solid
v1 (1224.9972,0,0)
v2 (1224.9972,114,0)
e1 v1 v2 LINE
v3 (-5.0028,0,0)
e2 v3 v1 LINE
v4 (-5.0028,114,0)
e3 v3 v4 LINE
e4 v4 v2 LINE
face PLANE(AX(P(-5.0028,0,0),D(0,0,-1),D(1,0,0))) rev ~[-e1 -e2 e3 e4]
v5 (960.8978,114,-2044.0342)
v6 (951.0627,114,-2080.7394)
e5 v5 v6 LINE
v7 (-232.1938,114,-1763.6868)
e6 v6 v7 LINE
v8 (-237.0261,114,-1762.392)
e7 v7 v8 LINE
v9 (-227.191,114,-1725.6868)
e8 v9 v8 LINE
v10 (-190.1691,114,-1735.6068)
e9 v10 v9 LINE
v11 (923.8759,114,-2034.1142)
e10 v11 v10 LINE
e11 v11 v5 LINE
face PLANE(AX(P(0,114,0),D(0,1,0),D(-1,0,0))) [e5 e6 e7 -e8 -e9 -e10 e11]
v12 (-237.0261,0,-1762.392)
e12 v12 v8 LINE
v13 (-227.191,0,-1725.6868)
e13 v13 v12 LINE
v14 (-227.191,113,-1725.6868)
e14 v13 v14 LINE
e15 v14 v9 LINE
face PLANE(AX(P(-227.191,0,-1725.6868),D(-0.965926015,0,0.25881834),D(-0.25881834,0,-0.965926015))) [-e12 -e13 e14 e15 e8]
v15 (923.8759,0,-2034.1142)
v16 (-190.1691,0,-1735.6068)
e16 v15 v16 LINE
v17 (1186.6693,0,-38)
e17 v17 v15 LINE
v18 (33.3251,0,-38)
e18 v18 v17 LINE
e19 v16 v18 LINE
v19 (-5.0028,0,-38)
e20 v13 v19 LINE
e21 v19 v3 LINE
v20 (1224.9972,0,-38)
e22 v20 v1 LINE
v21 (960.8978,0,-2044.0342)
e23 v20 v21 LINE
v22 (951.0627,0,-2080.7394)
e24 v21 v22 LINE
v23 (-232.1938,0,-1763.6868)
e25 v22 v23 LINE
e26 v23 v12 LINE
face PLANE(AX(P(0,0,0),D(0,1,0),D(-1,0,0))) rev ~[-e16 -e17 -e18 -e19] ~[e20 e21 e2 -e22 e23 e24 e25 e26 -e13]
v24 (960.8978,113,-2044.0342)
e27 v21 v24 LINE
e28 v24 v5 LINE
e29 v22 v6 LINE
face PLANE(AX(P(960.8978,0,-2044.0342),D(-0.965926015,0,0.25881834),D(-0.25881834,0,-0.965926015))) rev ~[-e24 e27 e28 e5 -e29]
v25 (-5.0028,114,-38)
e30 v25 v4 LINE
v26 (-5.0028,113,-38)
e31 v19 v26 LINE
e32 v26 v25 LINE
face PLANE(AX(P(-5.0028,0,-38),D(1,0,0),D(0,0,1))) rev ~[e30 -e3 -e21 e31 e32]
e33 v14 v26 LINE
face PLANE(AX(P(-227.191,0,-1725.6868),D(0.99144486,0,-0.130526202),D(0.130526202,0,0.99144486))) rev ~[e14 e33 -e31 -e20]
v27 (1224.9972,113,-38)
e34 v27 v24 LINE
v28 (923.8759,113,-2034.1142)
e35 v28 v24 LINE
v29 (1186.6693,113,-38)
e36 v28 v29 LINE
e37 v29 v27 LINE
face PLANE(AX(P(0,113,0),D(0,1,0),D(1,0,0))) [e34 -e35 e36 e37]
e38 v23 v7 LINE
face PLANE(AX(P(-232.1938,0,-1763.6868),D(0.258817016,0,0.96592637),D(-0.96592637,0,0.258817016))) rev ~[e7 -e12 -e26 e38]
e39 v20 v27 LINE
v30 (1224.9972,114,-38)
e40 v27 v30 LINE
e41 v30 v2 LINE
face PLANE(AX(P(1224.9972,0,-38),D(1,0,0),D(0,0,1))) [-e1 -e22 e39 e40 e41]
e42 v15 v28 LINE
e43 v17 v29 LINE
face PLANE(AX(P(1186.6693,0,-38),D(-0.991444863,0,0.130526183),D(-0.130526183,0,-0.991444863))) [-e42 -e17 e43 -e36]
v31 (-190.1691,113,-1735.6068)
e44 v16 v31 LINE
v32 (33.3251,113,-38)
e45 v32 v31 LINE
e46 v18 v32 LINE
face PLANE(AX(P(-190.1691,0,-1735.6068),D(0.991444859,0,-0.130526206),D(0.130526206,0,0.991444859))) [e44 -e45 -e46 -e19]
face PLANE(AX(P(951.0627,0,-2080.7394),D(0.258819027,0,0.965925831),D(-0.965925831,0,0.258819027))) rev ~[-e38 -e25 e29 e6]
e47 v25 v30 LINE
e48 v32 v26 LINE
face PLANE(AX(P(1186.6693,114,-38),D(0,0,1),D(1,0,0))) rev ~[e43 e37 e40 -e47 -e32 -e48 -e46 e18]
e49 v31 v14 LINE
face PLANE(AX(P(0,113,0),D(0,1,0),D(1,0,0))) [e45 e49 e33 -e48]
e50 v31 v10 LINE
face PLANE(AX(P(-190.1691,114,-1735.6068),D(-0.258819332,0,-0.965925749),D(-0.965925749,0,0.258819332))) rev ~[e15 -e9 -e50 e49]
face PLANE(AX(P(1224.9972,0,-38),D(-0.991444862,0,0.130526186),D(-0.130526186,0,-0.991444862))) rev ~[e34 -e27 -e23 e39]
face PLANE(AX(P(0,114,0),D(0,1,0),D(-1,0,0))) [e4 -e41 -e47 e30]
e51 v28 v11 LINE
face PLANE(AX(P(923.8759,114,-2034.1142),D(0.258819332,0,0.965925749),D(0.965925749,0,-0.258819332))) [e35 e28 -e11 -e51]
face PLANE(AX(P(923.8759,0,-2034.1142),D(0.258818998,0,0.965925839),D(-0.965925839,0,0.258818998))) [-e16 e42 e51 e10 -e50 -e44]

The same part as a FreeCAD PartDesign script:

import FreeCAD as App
import Part
import Sketcher
Q = App.Units.Quantity

doc = App.newDocument("Part")
body = doc.addObject("PartDesign::Body", "Body")

# Sketch on XZ plane
sketch1 = body.newObject("Sketcher::SketchObject", "Sketch")
sketch1.AttachmentSupport = (doc.getObject("XZ_Plane"), [""])
sketch1.MapMode = "FlatFace"
sketch1.addGeometry(Part.LineSegment(App.Vector(1225, 0, 0), App.Vector(1225, -38, 0)), False)
sketch1.addGeometry(Part.LineSegment(App.Vector(1225, -38, 0), App.Vector(961, -2044, 0)), False)
sketch1.addGeometry(Part.LineSegment(App.Vector(961, -2044, 0), App.Vector(951, -2081, 0)), False)
sketch1.addGeometry(Part.LineSegment(App.Vector(951, -2081, 0), App.Vector(-232, -1764, 0)), False)
sketch1.addGeometry(Part.LineSegment(App.Vector(-232, -1764, 0), App.Vector(-237, -1762, 0)), False)
sketch1.addGeometry(Part.LineSegment(App.Vector(-237, -1762, 0), App.Vector(-227, -1726, 0)), False)
sketch1.addGeometry(Part.LineSegment(App.Vector(-227, -1726, 0), App.Vector(-5, -38, 0)), False)
sketch1.addGeometry(Part.LineSegment(App.Vector(-5, -38, 0), App.Vector(-5, 0, 0)), False)
sketch1.addGeometry(Part.LineSegment(App.Vector(-5, 0, 0), App.Vector(1225, 0, 0)), False)
sketch1.addGeometry(Part.LineSegment(App.Vector(33, -38, 0), App.Vector(-190, -1736, 0)), False)
sketch1.addGeometry(Part.LineSegment(App.Vector(-190, -1736, 0), App.Vector(924, -2034, 0)), False)
sketch1.addGeometry(Part.LineSegment(App.Vector(924, -2034, 0), App.Vector(1187, -38, 0)), False)
sketch1.addGeometry(Part.LineSegment(App.Vector(1187, -38, 0), App.Vector(33, -38, 0)), False)
sketch1.addConstraint(Sketcher.Constraint("Coincident", 0, 2, 1, 1))
sketch1.addConstraint(Sketcher.Constraint("Coincident", 1, 2, 2, 1))
sketch1.addConstraint(Sketcher.Constraint("Coincident", 2, 2, 3, 1))
sketch1.addConstraint(Sketcher.Constraint("Coincident", 3, 2, 4, 1))
sketch1.addConstraint(Sketcher.Constraint("Coincident", 4, 2, 5, 1))
sketch1.addConstraint(Sketcher.Constraint("Coincident", 5, 2, 6, 1))
sketch1.addConstraint(Sketcher.Constraint("Coincident", 6, 2, 7, 1))
sketch1.addConstraint(Sketcher.Constraint("Coincident", 7, 2, 8, 1))
sketch1.addConstraint(Sketcher.Constraint("Coincident", 8, 2, 0, 1))
sketch1.addConstraint(Sketcher.Constraint("Coincident", 9, 2, 10, 1))
sketch1.addConstraint(Sketcher.Constraint("Coincident", 10, 2, 11, 1))
sketch1.addConstraint(Sketcher.Constraint("Coincident", 11, 2, 12, 1))
sketch1.addConstraint(Sketcher.Constraint("Coincident", 12, 2, 9, 1))
sketch1.addConstraint(Sketcher.Constraint("Vertical", 0))
sketch1.addConstraint(Sketcher.Constraint("Vertical", 7))
sketch1.addConstraint(Sketcher.Constraint("Horizontal", 8))
sketch1.addConstraint(Sketcher.Constraint("Horizontal", 12))
sketch1.addConstraint(Sketcher.Constraint("PointOnObject", 7, 2, -1))
sketch1.addConstraint(Sketcher.Constraint("Perpendicular", 2, 3))
sketch1.addConstraint(Sketcher.Constraint("Parallel", 3, 4))
sketch1.addConstraint(Sketcher.Constraint("Perpendicular", 4, 5))
sketch1.addConstraint(Sketcher.Constraint("Parallel", 1, 6))
sketch1.addConstraint(Sketcher.Constraint("Parallel", 6, 9))
sketch1.addConstraint(Sketcher.Constraint("Perpendicular", 5, 10))
sketch1.addConstraint(Sketcher.Constraint("Parallel", 9, 11))
sketch1.addConstraint(Sketcher.Constraint("Horizontal", 0, 2, 6, 2))
sketch1.addConstraint(Sketcher.Constraint("Horizontal", 6, 2, 11, 2))
sketch1.addConstraint(Sketcher.Constraint("Equal", 2, 5))
sketch1.addConstraint(Sketcher.Constraint("DistanceX", 8, 1, 8, 2, 1230.0))
sketch1.addConstraint(Sketcher.Constraint("DistanceY", 0, 2, 0, 1, 38.0))
sketch1.addConstraint(Sketcher.Constraint("Angle", 10, Q("-15 deg")))
sketch1.addConstraint(Sketcher.Constraint("Distance", 2, 38.0))
sketch1.addConstraint(Sketcher.Constraint("DistanceY", 3, 2, 5, 2, 38.0))
sketch1.addConstraint(Sketcher.Constraint("Angle", 1, Q("-97.5 deg")))
sketch1.addConstraint(Sketcher.Constraint("DistanceY", 9, 2, 5, 2, 9.92))
sketch1.addConstraint(Sketcher.Constraint("DistanceY", 1, 2, 10, 2, 9.92))
sketch1.addConstraint(Sketcher.Constraint("DistanceX", 4, 2, -1, 1, 237.026))
sketch1.addConstraint(Sketcher.Constraint("DistanceY", 4, 2, -1, 1, 1762.392))
sketch1.addConstraint(Sketcher.Constraint("DistanceX", 9, 2, -1, 1, 190.169))
pad1 = body.newObject("PartDesign::Pad", "Pad")
pad1.Profile = sketch1
pad1.Length = 114
pad1.Reversed = True

# Sketch on XZ plane
sketch2 = body.newObject("Sketcher::SketchObject", "Sketch001")
sketch2.AttachmentSupport = (doc.getObject("XZ_Plane"), [""])
sketch2.MapMode = "FlatFace"
sketch2.AttachmentOffset = App.Placement(App.Vector(0, 0, -114), App.Rotation())
sketch2.addGeometry(Part.LineSegment(App.Vector(-5, -38, 0), App.Vector(33, -38, 0)), False)
sketch2.addGeometry(Part.LineSegment(App.Vector(33, -38, 0), App.Vector(-190, -1736, 0)), False)
sketch2.addGeometry(Part.LineSegment(App.Vector(-190, -1736, 0), App.Vector(-227, -1726, 0)), False)
sketch2.addGeometry(Part.LineSegment(App.Vector(-227, -1726, 0), App.Vector(-5, -38, 0)), False)
sketch2.addConstraint(Sketcher.Constraint("Coincident", 0, 2, 1, 1))
sketch2.addConstraint(Sketcher.Constraint("Coincident", 1, 2, 2, 1))
sketch2.addConstraint(Sketcher.Constraint("Coincident", 2, 2, 3, 1))
sketch2.addConstraint(Sketcher.Constraint("Coincident", 3, 2, 0, 1))
sketch2.addConstraint(Sketcher.Constraint("Horizontal", 0))
sketch2.addConstraint(Sketcher.Constraint("Parallel", 1, 3))
sketch2.addConstraint(Sketcher.Constraint("Angle", 2, Q("165 deg")))
sketch2.addConstraint(Sketcher.Constraint("DistanceY", 0, 2, -1, 1, 38.0))
sketch2.addConstraint(Sketcher.Constraint("Angle", 1, Q("-97.5 deg")))
sketch2.addConstraint(Sketcher.Constraint("DistanceX", 0, 1, 0, 2, 38.328))
sketch2.addConstraint(Sketcher.Constraint("DistanceX", -1, 1, 0, 2, 33.325))
sketch2.addConstraint(Sketcher.Constraint("DistanceX", 1, 2, -1, 1, 190.169))
pocket1 = body.newObject("PartDesign::Pocket", "Pocket")
pocket1.Profile = sketch2
pocket1.Length = 1
pocket1.Reversed = True

# Sketch on XZ plane
sketch3 = body.newObject("Sketcher::SketchObject", "Sketch002")
sketch3.AttachmentSupport = (doc.getObject("XZ_Plane"), [""])
sketch3.MapMode = "FlatFace"
sketch3.AttachmentOffset = App.Placement(App.Vector(0, 0, -114), App.Rotation())
sketch3.addGeometry(Part.LineSegment(App.Vector(1187, -38, 0), App.Vector(1225, -38, 0)), False)
sketch3.addGeometry(Part.LineSegment(App.Vector(1225, -38, 0), App.Vector(961, -2044, 0)), False)
sketch3.addGeometry(Part.LineSegment(App.Vector(961, -2044, 0), App.Vector(924, -2034, 0)), False)
sketch3.addGeometry(Part.LineSegment(App.Vector(924, -2034, 0), App.Vector(1187, -38, 0)), False)
sketch3.addConstraint(Sketcher.Constraint("Coincident", 0, 2, 1, 1))
sketch3.addConstraint(Sketcher.Constraint("Coincident", 1, 2, 2, 1))
sketch3.addConstraint(Sketcher.Constraint("Coincident", 2, 2, 3, 1))
sketch3.addConstraint(Sketcher.Constraint("Coincident", 3, 2, 0, 1))
sketch3.addConstraint(Sketcher.Constraint("Horizontal", 0))
sketch3.addConstraint(Sketcher.Constraint("Parallel", 1, 3))
sketch3.addConstraint(Sketcher.Constraint("Angle", 2, Q("165 deg")))
sketch3.addConstraint(Sketcher.Constraint("DistanceY", 0, 2, -1, 1, 38.0))
sketch3.addConstraint(Sketcher.Constraint("Angle", 1, Q("-97.5 deg")))
sketch3.addConstraint(Sketcher.Constraint("DistanceX", 0, 1, 0, 2, 38.328))
sketch3.addConstraint(Sketcher.Constraint("DistanceX", -1, 1, 2, 2, 923.876))
sketch3.addConstraint(Sketcher.Constraint("Distance", 1, 2023.3442))
pocket2 = body.newObject("PartDesign::Pocket", "Pocket001")
pocket2.Profile = sketch3
pocket2.Length = 1
pocket2.Reversed = True

doc.recompute()
